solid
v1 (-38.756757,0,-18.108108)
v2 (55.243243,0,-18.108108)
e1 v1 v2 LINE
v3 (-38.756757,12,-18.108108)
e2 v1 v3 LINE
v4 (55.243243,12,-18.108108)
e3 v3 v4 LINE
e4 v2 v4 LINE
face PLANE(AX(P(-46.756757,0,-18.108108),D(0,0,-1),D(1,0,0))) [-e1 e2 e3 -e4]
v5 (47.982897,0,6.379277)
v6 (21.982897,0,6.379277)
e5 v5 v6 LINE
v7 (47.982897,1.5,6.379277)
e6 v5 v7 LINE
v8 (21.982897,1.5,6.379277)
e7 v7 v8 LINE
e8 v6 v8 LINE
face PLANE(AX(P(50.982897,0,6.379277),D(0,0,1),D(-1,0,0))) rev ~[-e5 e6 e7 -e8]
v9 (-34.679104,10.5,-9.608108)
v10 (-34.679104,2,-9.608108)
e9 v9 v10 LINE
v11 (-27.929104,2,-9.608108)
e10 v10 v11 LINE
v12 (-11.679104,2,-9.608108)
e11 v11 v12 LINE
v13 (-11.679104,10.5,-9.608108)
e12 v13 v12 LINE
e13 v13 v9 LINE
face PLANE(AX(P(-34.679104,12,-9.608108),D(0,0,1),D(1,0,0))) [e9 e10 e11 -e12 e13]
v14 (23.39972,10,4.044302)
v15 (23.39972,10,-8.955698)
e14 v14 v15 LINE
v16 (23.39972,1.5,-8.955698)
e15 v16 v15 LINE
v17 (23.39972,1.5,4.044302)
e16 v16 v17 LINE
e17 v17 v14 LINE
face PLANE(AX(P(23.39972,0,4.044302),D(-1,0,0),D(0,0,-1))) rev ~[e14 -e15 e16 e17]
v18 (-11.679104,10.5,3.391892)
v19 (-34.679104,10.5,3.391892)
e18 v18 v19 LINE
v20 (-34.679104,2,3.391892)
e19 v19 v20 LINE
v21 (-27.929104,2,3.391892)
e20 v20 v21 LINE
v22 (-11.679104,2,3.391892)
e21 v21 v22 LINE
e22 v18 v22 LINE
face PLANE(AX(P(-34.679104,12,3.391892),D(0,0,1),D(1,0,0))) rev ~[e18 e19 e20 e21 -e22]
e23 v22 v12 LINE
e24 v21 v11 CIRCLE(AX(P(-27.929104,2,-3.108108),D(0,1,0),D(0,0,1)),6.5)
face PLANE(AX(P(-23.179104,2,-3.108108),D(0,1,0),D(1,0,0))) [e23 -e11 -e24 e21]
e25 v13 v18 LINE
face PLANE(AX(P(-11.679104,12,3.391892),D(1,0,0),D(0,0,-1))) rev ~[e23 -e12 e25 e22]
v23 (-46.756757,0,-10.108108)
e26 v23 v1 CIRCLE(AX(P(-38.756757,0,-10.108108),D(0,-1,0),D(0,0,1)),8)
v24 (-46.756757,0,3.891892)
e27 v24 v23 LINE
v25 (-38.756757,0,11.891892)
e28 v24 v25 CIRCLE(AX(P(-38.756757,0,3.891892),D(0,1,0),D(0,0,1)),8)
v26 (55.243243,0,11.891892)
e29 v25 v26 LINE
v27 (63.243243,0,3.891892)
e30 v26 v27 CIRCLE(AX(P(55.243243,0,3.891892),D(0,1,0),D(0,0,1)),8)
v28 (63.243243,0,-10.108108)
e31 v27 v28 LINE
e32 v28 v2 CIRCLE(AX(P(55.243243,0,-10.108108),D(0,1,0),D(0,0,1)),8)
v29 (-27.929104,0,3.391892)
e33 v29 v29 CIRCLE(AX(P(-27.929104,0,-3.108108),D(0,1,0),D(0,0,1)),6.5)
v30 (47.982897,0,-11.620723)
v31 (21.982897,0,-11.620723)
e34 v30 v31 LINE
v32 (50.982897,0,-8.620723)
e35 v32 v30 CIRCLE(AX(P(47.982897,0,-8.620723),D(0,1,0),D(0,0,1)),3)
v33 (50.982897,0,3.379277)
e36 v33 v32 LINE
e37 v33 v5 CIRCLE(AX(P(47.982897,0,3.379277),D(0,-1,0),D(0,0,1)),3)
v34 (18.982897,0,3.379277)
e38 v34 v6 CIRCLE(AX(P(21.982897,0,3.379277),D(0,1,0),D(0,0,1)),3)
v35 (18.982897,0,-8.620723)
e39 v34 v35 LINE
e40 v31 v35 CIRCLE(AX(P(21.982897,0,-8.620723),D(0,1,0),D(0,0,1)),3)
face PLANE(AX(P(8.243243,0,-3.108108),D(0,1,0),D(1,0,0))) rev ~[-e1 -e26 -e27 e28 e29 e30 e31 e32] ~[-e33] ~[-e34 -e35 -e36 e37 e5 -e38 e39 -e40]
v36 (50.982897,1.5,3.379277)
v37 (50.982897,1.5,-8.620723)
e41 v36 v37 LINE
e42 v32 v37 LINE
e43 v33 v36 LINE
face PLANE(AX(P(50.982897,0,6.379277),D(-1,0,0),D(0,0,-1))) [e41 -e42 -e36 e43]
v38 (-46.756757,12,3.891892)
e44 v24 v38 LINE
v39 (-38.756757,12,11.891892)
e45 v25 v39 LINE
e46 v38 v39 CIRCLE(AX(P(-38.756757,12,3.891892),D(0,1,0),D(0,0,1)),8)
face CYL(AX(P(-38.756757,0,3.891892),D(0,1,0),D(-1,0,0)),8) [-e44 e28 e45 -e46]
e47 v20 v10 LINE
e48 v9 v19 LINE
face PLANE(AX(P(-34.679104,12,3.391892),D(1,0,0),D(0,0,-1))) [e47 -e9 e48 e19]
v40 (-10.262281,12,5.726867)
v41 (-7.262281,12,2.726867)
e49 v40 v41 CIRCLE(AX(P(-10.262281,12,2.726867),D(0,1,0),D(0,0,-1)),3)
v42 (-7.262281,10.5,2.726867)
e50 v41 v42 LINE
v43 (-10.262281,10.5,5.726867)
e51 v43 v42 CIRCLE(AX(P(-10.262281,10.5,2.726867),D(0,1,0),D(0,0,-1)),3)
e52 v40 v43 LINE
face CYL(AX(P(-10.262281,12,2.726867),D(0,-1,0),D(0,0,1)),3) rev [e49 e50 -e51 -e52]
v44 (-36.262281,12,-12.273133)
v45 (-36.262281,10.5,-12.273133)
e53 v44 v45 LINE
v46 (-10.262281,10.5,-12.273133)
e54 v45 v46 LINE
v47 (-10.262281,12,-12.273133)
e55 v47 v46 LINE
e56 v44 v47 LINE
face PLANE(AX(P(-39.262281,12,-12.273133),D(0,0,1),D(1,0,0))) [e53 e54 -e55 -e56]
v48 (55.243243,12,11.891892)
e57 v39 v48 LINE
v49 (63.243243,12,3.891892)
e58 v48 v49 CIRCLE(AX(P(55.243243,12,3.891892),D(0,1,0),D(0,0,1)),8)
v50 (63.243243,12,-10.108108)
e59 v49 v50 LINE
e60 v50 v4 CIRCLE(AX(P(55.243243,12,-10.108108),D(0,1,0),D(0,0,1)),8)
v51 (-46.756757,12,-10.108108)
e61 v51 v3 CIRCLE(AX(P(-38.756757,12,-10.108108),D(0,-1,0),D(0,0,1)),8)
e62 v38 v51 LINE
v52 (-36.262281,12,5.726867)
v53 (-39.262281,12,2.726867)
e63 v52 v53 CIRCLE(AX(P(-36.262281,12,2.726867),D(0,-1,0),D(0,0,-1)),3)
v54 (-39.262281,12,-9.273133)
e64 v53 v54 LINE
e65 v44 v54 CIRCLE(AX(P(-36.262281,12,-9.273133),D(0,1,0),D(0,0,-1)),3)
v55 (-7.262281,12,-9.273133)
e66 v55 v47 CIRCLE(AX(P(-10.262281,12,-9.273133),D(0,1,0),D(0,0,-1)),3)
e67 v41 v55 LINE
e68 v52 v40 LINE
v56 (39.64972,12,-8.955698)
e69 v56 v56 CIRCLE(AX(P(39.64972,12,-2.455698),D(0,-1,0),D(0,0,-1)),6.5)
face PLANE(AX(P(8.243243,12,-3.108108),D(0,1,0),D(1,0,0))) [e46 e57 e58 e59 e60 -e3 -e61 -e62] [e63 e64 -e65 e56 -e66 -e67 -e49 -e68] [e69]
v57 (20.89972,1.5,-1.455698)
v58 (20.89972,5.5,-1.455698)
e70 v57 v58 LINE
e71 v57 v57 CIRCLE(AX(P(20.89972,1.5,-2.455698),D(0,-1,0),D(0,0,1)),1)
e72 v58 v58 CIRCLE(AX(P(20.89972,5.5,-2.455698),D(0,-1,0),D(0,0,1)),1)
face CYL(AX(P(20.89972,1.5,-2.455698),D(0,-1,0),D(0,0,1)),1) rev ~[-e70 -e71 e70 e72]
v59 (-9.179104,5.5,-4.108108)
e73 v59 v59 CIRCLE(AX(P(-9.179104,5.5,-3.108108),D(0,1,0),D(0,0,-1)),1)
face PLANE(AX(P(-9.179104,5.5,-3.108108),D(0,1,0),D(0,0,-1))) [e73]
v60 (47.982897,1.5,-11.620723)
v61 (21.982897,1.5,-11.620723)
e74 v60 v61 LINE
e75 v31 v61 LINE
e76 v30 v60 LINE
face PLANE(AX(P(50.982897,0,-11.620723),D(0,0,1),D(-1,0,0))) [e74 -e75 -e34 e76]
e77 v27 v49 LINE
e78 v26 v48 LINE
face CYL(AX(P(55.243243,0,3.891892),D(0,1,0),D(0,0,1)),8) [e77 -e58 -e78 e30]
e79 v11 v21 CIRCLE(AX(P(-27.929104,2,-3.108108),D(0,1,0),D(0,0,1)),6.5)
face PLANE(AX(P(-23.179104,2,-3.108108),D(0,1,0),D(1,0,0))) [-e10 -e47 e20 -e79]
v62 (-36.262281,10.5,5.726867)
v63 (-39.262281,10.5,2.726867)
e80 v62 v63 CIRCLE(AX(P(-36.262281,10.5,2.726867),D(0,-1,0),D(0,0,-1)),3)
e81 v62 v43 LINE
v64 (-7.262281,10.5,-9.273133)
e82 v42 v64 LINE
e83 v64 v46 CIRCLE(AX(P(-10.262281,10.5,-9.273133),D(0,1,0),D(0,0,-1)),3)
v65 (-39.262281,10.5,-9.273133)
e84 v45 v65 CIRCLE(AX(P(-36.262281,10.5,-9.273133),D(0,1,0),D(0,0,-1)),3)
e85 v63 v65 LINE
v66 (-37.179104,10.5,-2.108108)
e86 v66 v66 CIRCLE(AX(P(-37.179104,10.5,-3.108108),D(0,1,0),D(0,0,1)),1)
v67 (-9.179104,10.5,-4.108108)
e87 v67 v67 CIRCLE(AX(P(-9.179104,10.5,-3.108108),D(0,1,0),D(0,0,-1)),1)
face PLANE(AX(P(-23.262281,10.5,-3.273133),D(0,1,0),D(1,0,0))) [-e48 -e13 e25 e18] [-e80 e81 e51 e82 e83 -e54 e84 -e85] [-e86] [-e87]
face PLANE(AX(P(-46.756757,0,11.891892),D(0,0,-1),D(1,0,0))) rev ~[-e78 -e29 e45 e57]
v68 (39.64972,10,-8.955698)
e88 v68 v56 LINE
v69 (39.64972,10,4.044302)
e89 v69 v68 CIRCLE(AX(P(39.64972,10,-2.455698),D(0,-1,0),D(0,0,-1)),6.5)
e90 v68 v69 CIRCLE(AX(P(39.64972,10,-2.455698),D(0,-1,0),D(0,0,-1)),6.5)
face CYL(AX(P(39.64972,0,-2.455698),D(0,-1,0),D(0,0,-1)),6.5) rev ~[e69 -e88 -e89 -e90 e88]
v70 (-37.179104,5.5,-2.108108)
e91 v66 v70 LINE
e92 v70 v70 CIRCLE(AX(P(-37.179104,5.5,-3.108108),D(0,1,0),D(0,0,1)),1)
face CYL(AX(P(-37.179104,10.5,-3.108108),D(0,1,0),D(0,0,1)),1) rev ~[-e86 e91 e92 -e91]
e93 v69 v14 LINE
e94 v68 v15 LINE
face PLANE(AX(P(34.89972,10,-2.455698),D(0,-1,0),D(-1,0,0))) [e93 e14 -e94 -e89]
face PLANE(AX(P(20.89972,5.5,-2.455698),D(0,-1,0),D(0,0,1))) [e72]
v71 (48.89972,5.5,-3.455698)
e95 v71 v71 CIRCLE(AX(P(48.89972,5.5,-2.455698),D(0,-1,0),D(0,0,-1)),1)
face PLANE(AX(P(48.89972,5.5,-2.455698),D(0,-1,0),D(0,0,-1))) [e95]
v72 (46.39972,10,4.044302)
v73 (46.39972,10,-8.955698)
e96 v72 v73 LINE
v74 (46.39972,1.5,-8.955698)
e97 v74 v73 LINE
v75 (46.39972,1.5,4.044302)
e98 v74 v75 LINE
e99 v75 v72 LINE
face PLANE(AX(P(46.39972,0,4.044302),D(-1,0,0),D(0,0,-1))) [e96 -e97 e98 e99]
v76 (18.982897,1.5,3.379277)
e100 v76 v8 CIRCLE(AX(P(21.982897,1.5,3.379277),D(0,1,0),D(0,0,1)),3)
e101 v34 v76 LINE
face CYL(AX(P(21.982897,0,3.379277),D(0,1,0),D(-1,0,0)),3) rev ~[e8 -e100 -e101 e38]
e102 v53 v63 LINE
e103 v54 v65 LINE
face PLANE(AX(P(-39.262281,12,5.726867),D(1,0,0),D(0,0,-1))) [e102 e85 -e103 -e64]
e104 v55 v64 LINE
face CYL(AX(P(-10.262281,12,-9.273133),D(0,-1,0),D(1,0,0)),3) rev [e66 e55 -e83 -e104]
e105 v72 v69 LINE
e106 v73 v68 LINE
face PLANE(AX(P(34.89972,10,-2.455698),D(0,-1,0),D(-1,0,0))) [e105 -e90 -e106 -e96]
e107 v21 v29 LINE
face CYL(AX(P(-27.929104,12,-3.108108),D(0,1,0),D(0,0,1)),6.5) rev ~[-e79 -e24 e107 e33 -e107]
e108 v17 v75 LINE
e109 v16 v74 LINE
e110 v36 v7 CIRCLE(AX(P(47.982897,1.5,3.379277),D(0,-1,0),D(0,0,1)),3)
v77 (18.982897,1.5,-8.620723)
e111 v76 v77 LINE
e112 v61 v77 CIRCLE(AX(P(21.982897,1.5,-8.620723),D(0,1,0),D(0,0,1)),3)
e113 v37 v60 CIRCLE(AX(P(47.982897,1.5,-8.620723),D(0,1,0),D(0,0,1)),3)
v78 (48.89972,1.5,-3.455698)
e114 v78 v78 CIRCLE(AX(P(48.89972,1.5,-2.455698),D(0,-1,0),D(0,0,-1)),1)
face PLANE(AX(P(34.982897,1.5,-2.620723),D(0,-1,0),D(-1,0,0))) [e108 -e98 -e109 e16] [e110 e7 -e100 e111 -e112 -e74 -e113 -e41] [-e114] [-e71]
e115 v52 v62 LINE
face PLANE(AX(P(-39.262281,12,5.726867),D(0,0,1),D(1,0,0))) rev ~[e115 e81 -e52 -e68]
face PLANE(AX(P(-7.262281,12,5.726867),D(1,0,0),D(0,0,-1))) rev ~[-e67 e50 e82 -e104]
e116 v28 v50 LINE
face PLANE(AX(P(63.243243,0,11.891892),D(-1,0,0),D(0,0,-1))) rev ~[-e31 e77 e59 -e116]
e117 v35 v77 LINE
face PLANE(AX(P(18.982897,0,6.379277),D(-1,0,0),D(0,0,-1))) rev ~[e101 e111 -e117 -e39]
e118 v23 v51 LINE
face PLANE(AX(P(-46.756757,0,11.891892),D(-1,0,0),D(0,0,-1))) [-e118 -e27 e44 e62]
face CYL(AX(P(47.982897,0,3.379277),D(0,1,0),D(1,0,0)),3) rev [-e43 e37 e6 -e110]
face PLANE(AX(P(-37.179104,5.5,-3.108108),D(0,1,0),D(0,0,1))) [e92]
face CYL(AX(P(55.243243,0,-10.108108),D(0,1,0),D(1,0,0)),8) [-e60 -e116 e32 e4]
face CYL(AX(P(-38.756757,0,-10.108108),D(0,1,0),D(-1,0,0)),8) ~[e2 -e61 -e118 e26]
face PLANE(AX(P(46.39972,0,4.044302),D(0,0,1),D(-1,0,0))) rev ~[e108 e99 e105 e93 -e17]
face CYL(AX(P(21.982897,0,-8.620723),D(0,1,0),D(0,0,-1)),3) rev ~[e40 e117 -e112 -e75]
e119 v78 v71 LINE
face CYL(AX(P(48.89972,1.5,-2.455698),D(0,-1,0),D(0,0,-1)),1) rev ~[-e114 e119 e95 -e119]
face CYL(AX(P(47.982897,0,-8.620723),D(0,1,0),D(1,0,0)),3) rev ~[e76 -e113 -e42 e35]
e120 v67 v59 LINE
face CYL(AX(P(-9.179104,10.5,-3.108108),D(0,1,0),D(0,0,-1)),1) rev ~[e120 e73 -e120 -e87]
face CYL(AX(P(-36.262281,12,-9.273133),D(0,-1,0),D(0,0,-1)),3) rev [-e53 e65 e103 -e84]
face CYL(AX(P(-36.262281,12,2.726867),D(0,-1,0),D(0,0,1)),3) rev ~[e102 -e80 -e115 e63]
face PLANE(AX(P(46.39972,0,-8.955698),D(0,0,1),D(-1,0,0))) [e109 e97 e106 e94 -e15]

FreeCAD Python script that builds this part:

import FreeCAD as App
import Part
import Sketcher
from FreeCAD import Vector
Q = App.Units.Quantity


def edges_at(feature, points):
    """Names of the edges that pass closest to the given points."""
    edges = feature.Shape.Edges
    near = lambda p: min(range(len(edges)), key=lambda i: edges[i].distToShape(Part.Vertex(*p))[0])
    return sorted({f"Edge{near(p) + 1}" for p in points})


def add_polygon(sketch, points):
    """Adds a closed chain of lines whose ends are joined by coincident constraints."""
    first, n = sketch.GeometryCount, len(points)
    for a, b in zip(points, points[1:] + points[:1]):
        sketch.addGeometry(Part.LineSegment(App.Vector(*a, 0), App.Vector(*b, 0)), False)
    for i in range(n):
        sketch.addConstraint(Sketcher.Constraint("Coincident", first + i, 2, first + (i + 1) % n, 1))

doc = App.newDocument("Part")
body = doc.addObject("PartDesign::Body", "Body")

# Sketch on XZ plane
sketch1 = body.newObject("Sketcher::SketchObject", "Sketch")
sketch1.AttachmentSupport = (doc.getObject("XZ_Plane"), [""])
sketch1.MapMode = "FlatFace"
add_polygon(sketch1, [(-47, -18), (-47, 12), (63, 12), (63, -18)])  # lines 0-3
sketch1.addConstraint([
    Sketcher.Constraint("Vertical", 0),
    Sketcher.Constraint("Horizontal", 1),
    Sketcher.Constraint("Vertical", 2),
    Sketcher.Constraint("Horizontal", 3),
    Sketcher.Constraint("DistanceX", 1, 1, 1, 2, Q("110 mm")),
    Sketcher.Constraint("DistanceY", 0, 1, 0, 2, Q("30 mm")),
    Sketcher.Constraint("DistanceY", -1, 1, 0, 2, Q("11.891892 mm")),
    Sketcher.Constraint("DistanceX", 0, 2, -1, 1, Q("46.756757 mm")),
])
pad1 = body.newObject("PartDesign::Pad", "Pad")
pad1.Profile = sketch1
pad1.Length = 12
pad1.Reversed = True
doc.recompute()

fillet = body.newObject("PartDesign::Fillet", "Fillet")
fillet.Base = (pad1, edges_at(pad1, [
    (-46.757, 6, -18.108),
    (63.243, 6, -18.108),
    (63.243, 6, 11.892),
    (-46.757, 6, 11.892),
]))
fillet.Radius = 8

# Sketch on XZ plane
sketch2 = body.newObject("Sketcher::SketchObject", "Sketch001")
sketch2.AttachmentSupport = (doc.getObject("XZ_Plane"), [""])
sketch2.MapMode = "FlatFace"
sketch2.AttachmentOffset = App.Placement(Vector(0, 0, -12), App.Rotation())
sketch2.addGeometry(Part.Circle(Vector(-28, -3, 0), Vector(0, 0, 1), 6), False)
sketch2.addConstraint([
    Sketcher.Constraint("Diameter", 0, Q("13 mm")),
    Sketcher.Constraint("DistanceY", 0, 3, -1, 1, Q("3.108108 mm")),
    Sketcher.Constraint("DistanceX", 0, 3, -1, 1, Q("27.929104 mm")),
])
pocket1 = body.newObject("PartDesign::Pocket", "Pocket")
pocket1.Profile = sketch2
pocket1.Type = "ThroughAll"
pocket1.Reversed = True

# Sketch on XZ plane
sketch3 = body.newObject("Sketcher::SketchObject", "Sketch002")
sketch3.AttachmentSupport = (doc.getObject("XZ_Plane"), [""])
sketch3.MapMode = "FlatFace"
sketch3.AttachmentOffset = App.Placement(Vector(0, 0, -12), App.Rotation())
add_polygon(sketch3, [(-35, -10), (-35, 3), (-12, 3), (-12, -10)])  # lines 0-3
sketch3.addConstraint([
    Sketcher.Constraint("Vertical", 0),
    Sketcher.Constraint("Horizontal", 1),
    Sketcher.Constraint("Vertical", 2),
    Sketcher.Constraint("Horizontal", 3),
    Sketcher.Constraint("DistanceX", 1, 1, 1, 2, Q("23 mm")),
    Sketcher.Constraint("DistanceY", 0, 1, 0, 2, Q("13 mm")),
    Sketcher.Constraint("DistanceY", -1, 1, 0, 2, Q("3.391892 mm")),
    Sketcher.Constraint("DistanceX", 0, 2, -1, 1, Q("34.679104 mm")),
])
pocket2 = body.newObject("PartDesign::Pocket", "Pocket001")
pocket2.Profile = sketch3
pocket2.Length = 10
pocket2.Reversed = True

# Sketch on XZ plane
sketch4 = body.newObject("Sketcher::SketchObject", "Sketch003")
sketch4.AttachmentSupport = (doc.getObject("XZ_Plane"), [""])
sketch4.MapMode = "FlatFace"
sketch4.AttachmentOffset = App.Placement(Vector(0, 0, -12), App.Rotation())
add_polygon(sketch4, [(-39, -12), (-39, 6), (-7, 6), (-7, -12)])  # lines 0-3
sketch4.addConstraint([
    Sketcher.Constraint("Vertical", 0),
    Sketcher.Constraint("Horizontal", 1),
    Sketcher.Constraint("Vertical", 2),
    Sketcher.Constraint("Horizontal", 3),
    Sketcher.Constraint("DistanceX", 1, 1, 1, 2, Q("32 mm")),
    Sketcher.Constraint("DistanceY", 0, 1, 0, 2, Q("18 mm")),
    Sketcher.Constraint("DistanceX", 0, 2, -1, 1, Q("39.262281 mm")),
    Sketcher.Constraint("DistanceY", -1, 1, 0, 2, Q("5.726867 mm")),
])
pocket3 = body.newObject("PartDesign::Pocket", "Pocket002")
pocket3.Profile = sketch4
pocket3.Length = 1.5
pocket3.Reversed = True
doc.recompute()

fillet2 = body.newObject("PartDesign::Fillet", "Fillet001")
fillet2.Base = (pocket3, edges_at(pocket3, [
    (-39.262, 11.25, 5.727),
    (-39.262, 11.25, -12.273),
    (-7.262, 11.25, -12.273),
    (-7.262, 11.25, 5.727),
]))
fillet2.Radius = 3

# Sketch on XZ plane
sketch5 = body.newObject("Sketcher::SketchObject", "Sketch004")
sketch5.AttachmentSupport = (doc.getObject("XZ_Plane"), [""])
sketch5.MapMode = "FlatFace"
sketch5.addGeometry(Part.Circle(Vector(40, -2, 0), Vector(0, 0, 1), 6), False)
sketch5.addConstraint([
    Sketcher.Constraint("Diameter", 0, Q("13 mm")),
    Sketcher.Constraint("DistanceX", -1, 1, 0, 3, Q("39.64972 mm")),
    Sketcher.Constraint("DistanceY", 0, 3, -1, 1, Q("2.455698 mm")),
])
pocket4 = body.newObject("PartDesign::Pocket", "Pocket003")
pocket4.Profile = sketch5
pocket4.Type = "ThroughAll"

# Sketch on XZ plane
sketch6 = body.newObject("Sketcher::SketchObject", "Sketch005")
sketch6.AttachmentSupport = (doc.getObject("XZ_Plane"), [""])
sketch6.MapMode = "FlatFace"
add_polygon(sketch6, [(46, -9), (46, 4), (23, 4), (23, -9)])  # lines 0-3
sketch6.addConstraint([
    Sketcher.Constraint("Vertical", 0),
    Sketcher.Constraint("Horizontal", 1),
    Sketcher.Constraint("Vertical", 2),
    Sketcher.Constraint("Horizontal", 3),
    Sketcher.Constraint("DistanceX", 1, 2, 1, 1, Q("23 mm")),
    Sketcher.Constraint("DistanceY", 0, 1, 0, 2, Q("13 mm")),
    Sketcher.Constraint("DistanceX", -1, 1, 0, 2, Q("46.39972 mm")),
    Sketcher.Constraint("DistanceY", -1, 1, 0, 2, Q("4.044302 mm")),
])
pocket5 = body.newObject("PartDesign::Pocket", "Pocket004")
pocket5.Profile = sketch6
pocket5.Length = 10

# Sketch on XZ plane
sketch7 = body.newObject("Sketcher::SketchObject", "Sketch006")
sketch7.AttachmentSupport = (doc.getObject("XZ_Plane"), [""])
sketch7.MapMode = "FlatFace"
add_polygon(sketch7, [(51, -12), (51, 6), (19, 6), (19, -12)])  # lines 0-3
sketch7.addConstraint([
    Sketcher.Constraint("Vertical", 0),
    Sketcher.Constraint("Horizontal", 1),
    Sketcher.Constraint("Vertical", 2),
    Sketcher.Constraint("Horizontal", 3),
    Sketcher.Constraint("DistanceX", 1, 2, 1, 1, Q("32 mm")),
    Sketcher.Constraint("DistanceY", 0, 1, 0, 2, Q("18 mm")),
    Sketcher.Constraint("DistanceX", -1, 1, 0, 2, Q("50.982897 mm")),
    Sketcher.Constraint("DistanceY", -1, 1, 0, 2, Q("6.379277 mm")),
])
pocket6 = body.newObject("PartDesign::Pocket", "Pocket005")
pocket6.Profile = sketch7
pocket6.Length = 1.5
doc.recompute()

fillet3 = body.newObject("PartDesign::Fillet", "Fillet002")
fillet3.Base = (pocket6, edges_at(pocket6, [
    (50.983, 0.75, 6.379),
    (50.983, 0.75, -11.621),
    (18.983, 0.75, -11.621),
    (18.983, 0.75, 6.379),
]))
fillet3.Radius = 3

# Sketch on XZ plane
sketch8 = body.newObject("Sketcher::SketchObject", "Sketch007")
sketch8.AttachmentSupport = (doc.getObject("XZ_Plane"), [""])
sketch8.MapMode = "FlatFace"
sketch8.AttachmentOffset = App.Placement(Vector(0, 0, -1.5), App.Rotation())
sketch8.addGeometry([
    Part.Circle(Vector(48.9, -2.5, 0), Vector(0, 0, 1), 1),
    Part.Circle(Vector(20.9, -2.5, 0), Vector(0, 0, 1), 1),
], False)
sketch8.addConstraint([
    Sketcher.Constraint("Equal", 0, 1),
    Sketcher.Constraint("Horizontal", 0, 3, 1, 3),
    Sketcher.Constraint("Diameter", 0, Q("2 mm")),
    Sketcher.Constraint("DistanceX", 1, 3, 0, 3, Q("28 mm")),
    Sketcher.Constraint("DistanceX", -1, 1, 0, 3, Q("48.89972 mm")),
    Sketcher.Constraint("DistanceY", 0, 3, -1, 1, Q("2.455698 mm")),
])
pocket7 = body.newObject("PartDesign::Pocket", "Pocket006")
pocket7.Profile = sketch8
pocket7.Length = 4

# Sketch on XZ plane
sketch9 = body.newObject("Sketcher::SketchObject", "Sketch008")
sketch9.AttachmentSupport = (doc.getObject("XZ_Plane"), [""])
sketch9.MapMode = "FlatFace"
sketch9.AttachmentOffset = App.Placement(Vector(0, 0, -10.5), App.Rotation())
sketch9.addGeometry([
    Part.Circle(Vector(-37.2, -3.1, 0), Vector(0, 0, 1), 1),
    Part.Circle(Vector(-9.2, -3.1, 0), Vector(0, 0, 1), 1),
], False)
sketch9.addConstraint([
    Sketcher.Constraint("Equal", 0, 1),
    Sketcher.Constraint("Horizontal", 0, 3, 1, 3),
    Sketcher.Constraint("Diameter", 0, Q("2 mm")),
    Sketcher.Constraint("DistanceX", 0, 3, 1, 3, Q("28 mm")),
    Sketcher.Constraint("DistanceY", 0, 3, -1, 1, Q("3.108108 mm")),
    Sketcher.Constraint("DistanceX", 0, 3, -1, 1, Q("37.179104 mm")),
])
pocket8 = body.newObject("PartDesign::Pocket", "Pocket007")
pocket8.Profile = sketch9
pocket8.Length = 5
pocket8.Reversed = True

doc.recompute()
